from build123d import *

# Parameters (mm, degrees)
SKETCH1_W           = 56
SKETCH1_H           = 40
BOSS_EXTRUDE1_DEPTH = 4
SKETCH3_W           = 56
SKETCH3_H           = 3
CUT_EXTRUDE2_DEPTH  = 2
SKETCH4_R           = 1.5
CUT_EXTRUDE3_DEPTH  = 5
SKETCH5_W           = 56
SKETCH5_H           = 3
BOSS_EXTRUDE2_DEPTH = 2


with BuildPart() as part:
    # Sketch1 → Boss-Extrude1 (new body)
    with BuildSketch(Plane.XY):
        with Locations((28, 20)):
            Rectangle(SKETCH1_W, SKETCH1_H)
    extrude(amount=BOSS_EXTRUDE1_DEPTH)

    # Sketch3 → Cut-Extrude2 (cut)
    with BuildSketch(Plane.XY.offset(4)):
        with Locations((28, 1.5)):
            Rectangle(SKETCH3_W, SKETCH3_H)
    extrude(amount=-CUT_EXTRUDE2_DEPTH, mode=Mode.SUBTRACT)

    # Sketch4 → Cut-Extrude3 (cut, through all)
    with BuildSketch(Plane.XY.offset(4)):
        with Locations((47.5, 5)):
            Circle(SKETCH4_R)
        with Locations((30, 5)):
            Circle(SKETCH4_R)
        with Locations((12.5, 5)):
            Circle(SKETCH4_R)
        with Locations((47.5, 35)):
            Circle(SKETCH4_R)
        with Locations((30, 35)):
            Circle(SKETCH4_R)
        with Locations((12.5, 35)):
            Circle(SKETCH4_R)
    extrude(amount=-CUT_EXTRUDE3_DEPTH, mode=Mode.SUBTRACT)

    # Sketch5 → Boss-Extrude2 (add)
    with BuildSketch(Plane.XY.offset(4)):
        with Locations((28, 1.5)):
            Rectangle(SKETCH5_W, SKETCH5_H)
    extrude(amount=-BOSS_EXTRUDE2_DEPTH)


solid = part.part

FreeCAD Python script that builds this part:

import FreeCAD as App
import Part
import Sketcher

V = App.Vector
Q = App.Units.Quantity


def add_polygon(sketch, points):
    """Adds a closed chain of lines whose ends are joined by coincident constraints."""
    first, n = sketch.GeometryCount, len(points)
    for a, b in zip(points, points[1:] + points[:1]):
        sketch.addGeometry(Part.LineSegment(App.Vector(*a, 0), App.Vector(*b, 0)), False)
    for i in range(n):
        sketch.addConstraint(Sketcher.Constraint("Coincident", first + i, 2, first + (i + 1) % n, 1))

doc = App.newDocument("Part")
params = doc.addObject("Spreadsheet::Sheet", "Params")
for row, (alias, value) in enumerate([
    ("sketch1_width", "56 mm"),
    ("sketch1_height", "40 mm"),
    ("pad1_length", "4 mm"),
    ("sketch2_width", "56 mm"),
    ("sketch2_height", "3 mm"),
    ("pocket1_length", "2 mm"),
    ("sketch3_diameter", "3 mm"),
    ("sketch4_width", "56 mm"),
    ("sketch4_height", "3 mm"),
    ("pad2_length", "2 mm"),
], start=1):
    params.set(f"A{row}", alias)
    params.set(f"B{row}", "=" + value)
    params.setAlias(f"B{row}", alias)

body = doc.addObject("PartDesign::Body", "Body")

# Sketch on XY plane
sketch1 = body.newObject("Sketcher::SketchObject", "Sketch")
sketch1.AttachmentSupport = (doc.getObject("XY_Plane"), [""])
sketch1.MapMode = "FlatFace"
add_polygon(sketch1, [(0, 40), (0, 0), (56, 0), (56, 40)])  # lines 0-3
sketch1.addConstraint([
    Sketcher.Constraint("Vertical", 0),
    Sketcher.Constraint("Horizontal", 1),
    Sketcher.Constraint("Vertical", 2),
    Sketcher.Constraint("Horizontal", 3),
    Sketcher.Constraint("Coincident", 0, 2, -1, 1),
    Sketcher.Constraint("DistanceX", 1, 1, 1, 2, Q("56 mm")),
    Sketcher.Constraint("DistanceY", 0, 2, 0, 1, Q("40 mm")),
])
sketch1.setExpression("Constraints[9]", "Params.sketch1_width")
sketch1.setExpression("Constraints[10]", "Params.sketch1_height")
pad1 = body.newObject("PartDesign::Pad", "Pad")
pad1.Profile = sketch1
pad1.setExpression("Length", "Params.pad1_length")

# Sketch on XY plane
sketch2 = body.newObject("Sketcher::SketchObject", "Sketch001")
sketch2.AttachmentSupport = (doc.getObject("XY_Plane"), [""])
sketch2.MapMode = "FlatFace"
sketch2.AttachmentOffset = App.Placement(V(0, 0, 4), App.Rotation())
add_polygon(sketch2, [(0, 3), (0, 0), (56, 0), (56, 3)])  # lines 0-3
sketch2.addConstraint([
    Sketcher.Constraint("Vertical", 0),
    Sketcher.Constraint("Horizontal", 1),
    Sketcher.Constraint("Vertical", 2),
    Sketcher.Constraint("Horizontal", 3),
    Sketcher.Constraint("Coincident", 0, 2, -1, 1),
    Sketcher.Constraint("DistanceX", 1, 1, 1, 2, Q("56 mm")),
    Sketcher.Constraint("DistanceY", 0, 2, 0, 1, Q("3 mm")),
])
sketch2.setExpression("Constraints[9]", "Params.sketch2_width")
sketch2.setExpression("Constraints[10]", "Params.sketch2_height")
pocket1 = body.newObject("PartDesign::Pocket", "Pocket")
pocket1.Profile = sketch2
pocket1.setExpression("Length", "Params.pocket1_length")

# Sketch on XY plane
sketch3 = body.newObject("Sketcher::SketchObject", "Sketch002")
sketch3.AttachmentSupport = (doc.getObject("XY_Plane"), [""])
sketch3.MapMode = "FlatFace"
sketch3.AttachmentOffset = App.Placement(V(0, 0, 4), App.Rotation())
sketch3.addGeometry([
    Part.Circle(V(47.5, 5, 0), V(0, 0, 1), 1.5),  # 0
    Part.Circle(V(30, 5, 0), V(0, 0, 1), 1.5),  # 1
    Part.Circle(V(12.5, 5, 0), V(0, 0, 1), 1.5),  # 2
    Part.Circle(V(47.5, 35, 0), V(0, 0, 1), 1.5),  # 3
    Part.Circle(V(30, 35, 0), V(0, 0, 1), 1.5),  # 4
    Part.Circle(V(12.5, 35, 0), V(0, 0, 1), 1.5),  # 5
], False)
sketch3.addConstraint([
    Sketcher.Constraint("Equal", 0, 1),
    Sketcher.Constraint("Equal", 1, 2),
    Sketcher.Constraint("Equal", 2, 3),
    Sketcher.Constraint("Equal", 3, 4),
    Sketcher.Constraint("Equal", 4, 5),
    Sketcher.Constraint("Horizontal", 0, 3, 1, 3),
    Sketcher.Constraint("Horizontal", 1, 3, 2, 3),
    Sketcher.Constraint("Horizontal", 3, 3, 4, 3),
    Sketcher.Constraint("Horizontal", 4, 3, 5, 3),
    Sketcher.Constraint("Vertical", 0, 3, 3, 3),
    Sketcher.Constraint("Vertical", 1, 3, 4, 3),
    Sketcher.Constraint("Vertical", 2, 3, 5, 3),
    Sketcher.Constraint("Diameter", 0, Q("3 mm")),
    Sketcher.Constraint("DistanceY", -1, 1, 0, 3, Q("5 mm")),
    Sketcher.Constraint("DistanceX", -1, 1, 1, 3, Q("30 mm")),
    Sketcher.Constraint("DistanceY", -1, 1, 3, 3, Q("35 mm")),
    Sketcher.Constraint("DistanceX", 2, 3, 0, 3, Q("35 mm")),
    Sketcher.Constraint("DistanceX", -1, 1, 0, 3, Q("47.5 mm")),
])
sketch3.setExpression("Constraints[12]", "Params.sketch3_diameter")
pocket2 = body.newObject("PartDesign::Pocket", "Pocket001")
pocket2.Profile = sketch3
pocket2.Type = "ThroughAll"

# Sketch on XY plane
sketch4 = body.newObject("Sketcher::SketchObject", "Sketch003")
sketch4.AttachmentSupport = (doc.getObject("XY_Plane"), [""])
sketch4.MapMode = "FlatFace"
sketch4.AttachmentOffset = App.Placement(V(0, 0, 4), App.Rotation())
add_polygon(sketch4, [(0, 3), (0, 0), (56, 0), (56, 3)])  # lines 0-3
sketch4.addConstraint([
    Sketcher.Constraint("Vertical", 0),
    Sketcher.Constraint("Horizontal", 1),
    Sketcher.Constraint("Vertical", 2),
    Sketcher.Constraint("Horizontal", 3),
    Sketcher.Constraint("Coincident", 0, 2, -1, 1),
    Sketcher.Constraint("DistanceX", 1, 1, 1, 2, Q("56 mm")),
    Sketcher.Constraint("DistanceY", 0, 2, 0, 1, Q("3 mm")),
])
sketch4.setExpression("Constraints[9]", "Params.sketch4_width")
sketch4.setExpression("Constraints[10]", "Params.sketch4_height")
pad2 = body.newObject("PartDesign::Pad", "Pad001")
pad2.Profile = sketch4
pad2.setExpression("Length", "Params.pad2_length")
pad2.Reversed = True

doc.recompute()
